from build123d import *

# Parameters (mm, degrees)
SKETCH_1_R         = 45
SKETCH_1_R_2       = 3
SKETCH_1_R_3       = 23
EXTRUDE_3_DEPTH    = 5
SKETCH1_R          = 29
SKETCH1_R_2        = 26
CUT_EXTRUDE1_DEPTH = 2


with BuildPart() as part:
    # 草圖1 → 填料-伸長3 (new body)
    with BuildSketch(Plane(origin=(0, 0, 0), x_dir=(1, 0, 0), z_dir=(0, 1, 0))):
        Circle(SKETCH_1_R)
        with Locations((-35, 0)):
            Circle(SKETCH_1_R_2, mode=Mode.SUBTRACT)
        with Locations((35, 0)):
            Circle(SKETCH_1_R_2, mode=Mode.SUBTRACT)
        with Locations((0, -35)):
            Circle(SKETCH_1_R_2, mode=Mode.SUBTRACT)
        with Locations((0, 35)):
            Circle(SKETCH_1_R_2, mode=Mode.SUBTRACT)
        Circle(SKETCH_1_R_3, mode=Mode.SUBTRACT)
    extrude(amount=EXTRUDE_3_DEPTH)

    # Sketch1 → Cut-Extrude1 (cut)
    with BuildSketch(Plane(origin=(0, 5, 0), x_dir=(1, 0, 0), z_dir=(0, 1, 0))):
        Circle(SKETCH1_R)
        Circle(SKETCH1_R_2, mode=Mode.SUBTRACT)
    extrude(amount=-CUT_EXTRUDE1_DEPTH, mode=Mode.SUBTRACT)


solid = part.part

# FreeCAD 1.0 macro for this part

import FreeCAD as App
import Part
import Sketcher

V = App.Vector
Q = App.Units.Quantity

doc = App.newDocument("Part")
params = doc.addObject("Spreadsheet::Sheet", "Params")
for row, (alias, value) in enumerate([
    ("sketch1_diameter", "90 mm"),
    ("sketch1_diameter2", "6 mm"),
    ("sketch1_diameter3", "46 mm"),
    ("pad1_length", "5 mm"),
    ("sketch2_diameter", "58 mm"),
    ("sketch2_diameter2", "52 mm"),
    ("pocket1_length", "2 mm"),
], start=1):
    params.set(f"A{row}", alias)
    params.set(f"B{row}", "=" + value)
    params.setAlias(f"B{row}", alias)

body = doc.addObject("PartDesign::Body", "Body")

# Sketch on XZ plane
sketch1 = body.newObject("Sketcher::SketchObject", "Sketch")
sketch1.AttachmentSupport = (doc.getObject("XZ_Plane"), [""])
sketch1.MapMode = "FlatFace"
sketch1.addGeometry([
    Part.Circle(V(0, 0, 0), V(0, 0, 1), 45),  # 0
    Part.Circle(V(0, 35, 0), V(0, 0, 1), 3),  # 1
    Part.Circle(V(-35, 0, 0), V(0, 0, 1), 3),  # 2
    Part.Circle(V(0, 0, 0), V(0, 0, 1), 23),  # 3
    Part.Circle(V(35, 0, 0), V(0, 0, 1), 3),  # 4
    Part.Circle(V(0, -35, 0), V(0, 0, 1), 3),  # 5
], False)
sketch1.addConstraint([
    Sketcher.Constraint("Coincident", 0, 3, -1, 1),
    Sketcher.Constraint("Coincident", 3, 3, -1, 1),
    Sketcher.Constraint("Equal", 1, 2),
    Sketcher.Constraint("Equal", 2, 4),
    Sketcher.Constraint("Equal", 4, 5),
    Sketcher.Constraint("Symmetric", 2, 3, 4, 3, -1, 1),
    Sketcher.Constraint("Symmetric", 1, 3, 5, 3, -1, 1),
    Sketcher.Constraint("PointOnObject", 1, 3, -2),
    Sketcher.Constraint("PointOnObject", 2, 3, -1),
    Sketcher.Constraint("Diameter", 0, Q("90 mm")),
    Sketcher.Constraint("Diameter", 1, Q("6 mm")),
    Sketcher.Constraint("Diameter", 3, Q("46 mm")),
    Sketcher.Constraint("DistanceY", -1, 1, 1, 3, Q("35 mm")),
    Sketcher.Constraint("DistanceX", 2, 3, -1, 1, Q("35 mm")),
])
sketch1.setExpression("Constraints[9]", "Params.sketch1_diameter")
sketch1.setExpression("Constraints[10]", "Params.sketch1_diameter2")
sketch1.setExpression("Constraints[11]", "Params.sketch1_diameter3")
pad1 = body.newObject("PartDesign::Pad", "Pad")
pad1.Profile = sketch1
pad1.setExpression("Length", "Params.pad1_length")
pad1.Reversed = True

# Sketch on XZ plane
sketch2 = body.newObject("Sketcher::SketchObject", "Sketch001")
sketch2.AttachmentSupport = (doc.getObject("XZ_Plane"), [""])
sketch2.MapMode = "FlatFace"
sketch2.AttachmentOffset = App.Placement(V(0, 0, -5), App.Rotation())
sketch2.addGeometry([
    Part.Circle(V(0, 0, 0), V(0, 0, 1), 29),
    Part.Circle(V(0, 0, 0), V(0, 0, 1), 26),
], False)
sketch2.addConstraint([
    Sketcher.Constraint("Coincident", 0, 3, -1, 1),
    Sketcher.Constraint("Coincident", 1, 3, -1, 1),
    Sketcher.Constraint("Diameter", 0, Q("58 mm")),
    Sketcher.Constraint("Diameter", 1, Q("52 mm")),
])
sketch2.setExpression("Constraints[2]", "Params.sketch2_diameter")
sketch2.setExpression("Constraints[3]", "Params.sketch2_diameter2")
pocket1 = body.newObject("PartDesign::Pocket", "Pocket")
pocket1.Profile = sketch2
pocket1.setExpression("Length", "Params.pocket1_length")
pocket1.Reversed = True

doc.recompute()
